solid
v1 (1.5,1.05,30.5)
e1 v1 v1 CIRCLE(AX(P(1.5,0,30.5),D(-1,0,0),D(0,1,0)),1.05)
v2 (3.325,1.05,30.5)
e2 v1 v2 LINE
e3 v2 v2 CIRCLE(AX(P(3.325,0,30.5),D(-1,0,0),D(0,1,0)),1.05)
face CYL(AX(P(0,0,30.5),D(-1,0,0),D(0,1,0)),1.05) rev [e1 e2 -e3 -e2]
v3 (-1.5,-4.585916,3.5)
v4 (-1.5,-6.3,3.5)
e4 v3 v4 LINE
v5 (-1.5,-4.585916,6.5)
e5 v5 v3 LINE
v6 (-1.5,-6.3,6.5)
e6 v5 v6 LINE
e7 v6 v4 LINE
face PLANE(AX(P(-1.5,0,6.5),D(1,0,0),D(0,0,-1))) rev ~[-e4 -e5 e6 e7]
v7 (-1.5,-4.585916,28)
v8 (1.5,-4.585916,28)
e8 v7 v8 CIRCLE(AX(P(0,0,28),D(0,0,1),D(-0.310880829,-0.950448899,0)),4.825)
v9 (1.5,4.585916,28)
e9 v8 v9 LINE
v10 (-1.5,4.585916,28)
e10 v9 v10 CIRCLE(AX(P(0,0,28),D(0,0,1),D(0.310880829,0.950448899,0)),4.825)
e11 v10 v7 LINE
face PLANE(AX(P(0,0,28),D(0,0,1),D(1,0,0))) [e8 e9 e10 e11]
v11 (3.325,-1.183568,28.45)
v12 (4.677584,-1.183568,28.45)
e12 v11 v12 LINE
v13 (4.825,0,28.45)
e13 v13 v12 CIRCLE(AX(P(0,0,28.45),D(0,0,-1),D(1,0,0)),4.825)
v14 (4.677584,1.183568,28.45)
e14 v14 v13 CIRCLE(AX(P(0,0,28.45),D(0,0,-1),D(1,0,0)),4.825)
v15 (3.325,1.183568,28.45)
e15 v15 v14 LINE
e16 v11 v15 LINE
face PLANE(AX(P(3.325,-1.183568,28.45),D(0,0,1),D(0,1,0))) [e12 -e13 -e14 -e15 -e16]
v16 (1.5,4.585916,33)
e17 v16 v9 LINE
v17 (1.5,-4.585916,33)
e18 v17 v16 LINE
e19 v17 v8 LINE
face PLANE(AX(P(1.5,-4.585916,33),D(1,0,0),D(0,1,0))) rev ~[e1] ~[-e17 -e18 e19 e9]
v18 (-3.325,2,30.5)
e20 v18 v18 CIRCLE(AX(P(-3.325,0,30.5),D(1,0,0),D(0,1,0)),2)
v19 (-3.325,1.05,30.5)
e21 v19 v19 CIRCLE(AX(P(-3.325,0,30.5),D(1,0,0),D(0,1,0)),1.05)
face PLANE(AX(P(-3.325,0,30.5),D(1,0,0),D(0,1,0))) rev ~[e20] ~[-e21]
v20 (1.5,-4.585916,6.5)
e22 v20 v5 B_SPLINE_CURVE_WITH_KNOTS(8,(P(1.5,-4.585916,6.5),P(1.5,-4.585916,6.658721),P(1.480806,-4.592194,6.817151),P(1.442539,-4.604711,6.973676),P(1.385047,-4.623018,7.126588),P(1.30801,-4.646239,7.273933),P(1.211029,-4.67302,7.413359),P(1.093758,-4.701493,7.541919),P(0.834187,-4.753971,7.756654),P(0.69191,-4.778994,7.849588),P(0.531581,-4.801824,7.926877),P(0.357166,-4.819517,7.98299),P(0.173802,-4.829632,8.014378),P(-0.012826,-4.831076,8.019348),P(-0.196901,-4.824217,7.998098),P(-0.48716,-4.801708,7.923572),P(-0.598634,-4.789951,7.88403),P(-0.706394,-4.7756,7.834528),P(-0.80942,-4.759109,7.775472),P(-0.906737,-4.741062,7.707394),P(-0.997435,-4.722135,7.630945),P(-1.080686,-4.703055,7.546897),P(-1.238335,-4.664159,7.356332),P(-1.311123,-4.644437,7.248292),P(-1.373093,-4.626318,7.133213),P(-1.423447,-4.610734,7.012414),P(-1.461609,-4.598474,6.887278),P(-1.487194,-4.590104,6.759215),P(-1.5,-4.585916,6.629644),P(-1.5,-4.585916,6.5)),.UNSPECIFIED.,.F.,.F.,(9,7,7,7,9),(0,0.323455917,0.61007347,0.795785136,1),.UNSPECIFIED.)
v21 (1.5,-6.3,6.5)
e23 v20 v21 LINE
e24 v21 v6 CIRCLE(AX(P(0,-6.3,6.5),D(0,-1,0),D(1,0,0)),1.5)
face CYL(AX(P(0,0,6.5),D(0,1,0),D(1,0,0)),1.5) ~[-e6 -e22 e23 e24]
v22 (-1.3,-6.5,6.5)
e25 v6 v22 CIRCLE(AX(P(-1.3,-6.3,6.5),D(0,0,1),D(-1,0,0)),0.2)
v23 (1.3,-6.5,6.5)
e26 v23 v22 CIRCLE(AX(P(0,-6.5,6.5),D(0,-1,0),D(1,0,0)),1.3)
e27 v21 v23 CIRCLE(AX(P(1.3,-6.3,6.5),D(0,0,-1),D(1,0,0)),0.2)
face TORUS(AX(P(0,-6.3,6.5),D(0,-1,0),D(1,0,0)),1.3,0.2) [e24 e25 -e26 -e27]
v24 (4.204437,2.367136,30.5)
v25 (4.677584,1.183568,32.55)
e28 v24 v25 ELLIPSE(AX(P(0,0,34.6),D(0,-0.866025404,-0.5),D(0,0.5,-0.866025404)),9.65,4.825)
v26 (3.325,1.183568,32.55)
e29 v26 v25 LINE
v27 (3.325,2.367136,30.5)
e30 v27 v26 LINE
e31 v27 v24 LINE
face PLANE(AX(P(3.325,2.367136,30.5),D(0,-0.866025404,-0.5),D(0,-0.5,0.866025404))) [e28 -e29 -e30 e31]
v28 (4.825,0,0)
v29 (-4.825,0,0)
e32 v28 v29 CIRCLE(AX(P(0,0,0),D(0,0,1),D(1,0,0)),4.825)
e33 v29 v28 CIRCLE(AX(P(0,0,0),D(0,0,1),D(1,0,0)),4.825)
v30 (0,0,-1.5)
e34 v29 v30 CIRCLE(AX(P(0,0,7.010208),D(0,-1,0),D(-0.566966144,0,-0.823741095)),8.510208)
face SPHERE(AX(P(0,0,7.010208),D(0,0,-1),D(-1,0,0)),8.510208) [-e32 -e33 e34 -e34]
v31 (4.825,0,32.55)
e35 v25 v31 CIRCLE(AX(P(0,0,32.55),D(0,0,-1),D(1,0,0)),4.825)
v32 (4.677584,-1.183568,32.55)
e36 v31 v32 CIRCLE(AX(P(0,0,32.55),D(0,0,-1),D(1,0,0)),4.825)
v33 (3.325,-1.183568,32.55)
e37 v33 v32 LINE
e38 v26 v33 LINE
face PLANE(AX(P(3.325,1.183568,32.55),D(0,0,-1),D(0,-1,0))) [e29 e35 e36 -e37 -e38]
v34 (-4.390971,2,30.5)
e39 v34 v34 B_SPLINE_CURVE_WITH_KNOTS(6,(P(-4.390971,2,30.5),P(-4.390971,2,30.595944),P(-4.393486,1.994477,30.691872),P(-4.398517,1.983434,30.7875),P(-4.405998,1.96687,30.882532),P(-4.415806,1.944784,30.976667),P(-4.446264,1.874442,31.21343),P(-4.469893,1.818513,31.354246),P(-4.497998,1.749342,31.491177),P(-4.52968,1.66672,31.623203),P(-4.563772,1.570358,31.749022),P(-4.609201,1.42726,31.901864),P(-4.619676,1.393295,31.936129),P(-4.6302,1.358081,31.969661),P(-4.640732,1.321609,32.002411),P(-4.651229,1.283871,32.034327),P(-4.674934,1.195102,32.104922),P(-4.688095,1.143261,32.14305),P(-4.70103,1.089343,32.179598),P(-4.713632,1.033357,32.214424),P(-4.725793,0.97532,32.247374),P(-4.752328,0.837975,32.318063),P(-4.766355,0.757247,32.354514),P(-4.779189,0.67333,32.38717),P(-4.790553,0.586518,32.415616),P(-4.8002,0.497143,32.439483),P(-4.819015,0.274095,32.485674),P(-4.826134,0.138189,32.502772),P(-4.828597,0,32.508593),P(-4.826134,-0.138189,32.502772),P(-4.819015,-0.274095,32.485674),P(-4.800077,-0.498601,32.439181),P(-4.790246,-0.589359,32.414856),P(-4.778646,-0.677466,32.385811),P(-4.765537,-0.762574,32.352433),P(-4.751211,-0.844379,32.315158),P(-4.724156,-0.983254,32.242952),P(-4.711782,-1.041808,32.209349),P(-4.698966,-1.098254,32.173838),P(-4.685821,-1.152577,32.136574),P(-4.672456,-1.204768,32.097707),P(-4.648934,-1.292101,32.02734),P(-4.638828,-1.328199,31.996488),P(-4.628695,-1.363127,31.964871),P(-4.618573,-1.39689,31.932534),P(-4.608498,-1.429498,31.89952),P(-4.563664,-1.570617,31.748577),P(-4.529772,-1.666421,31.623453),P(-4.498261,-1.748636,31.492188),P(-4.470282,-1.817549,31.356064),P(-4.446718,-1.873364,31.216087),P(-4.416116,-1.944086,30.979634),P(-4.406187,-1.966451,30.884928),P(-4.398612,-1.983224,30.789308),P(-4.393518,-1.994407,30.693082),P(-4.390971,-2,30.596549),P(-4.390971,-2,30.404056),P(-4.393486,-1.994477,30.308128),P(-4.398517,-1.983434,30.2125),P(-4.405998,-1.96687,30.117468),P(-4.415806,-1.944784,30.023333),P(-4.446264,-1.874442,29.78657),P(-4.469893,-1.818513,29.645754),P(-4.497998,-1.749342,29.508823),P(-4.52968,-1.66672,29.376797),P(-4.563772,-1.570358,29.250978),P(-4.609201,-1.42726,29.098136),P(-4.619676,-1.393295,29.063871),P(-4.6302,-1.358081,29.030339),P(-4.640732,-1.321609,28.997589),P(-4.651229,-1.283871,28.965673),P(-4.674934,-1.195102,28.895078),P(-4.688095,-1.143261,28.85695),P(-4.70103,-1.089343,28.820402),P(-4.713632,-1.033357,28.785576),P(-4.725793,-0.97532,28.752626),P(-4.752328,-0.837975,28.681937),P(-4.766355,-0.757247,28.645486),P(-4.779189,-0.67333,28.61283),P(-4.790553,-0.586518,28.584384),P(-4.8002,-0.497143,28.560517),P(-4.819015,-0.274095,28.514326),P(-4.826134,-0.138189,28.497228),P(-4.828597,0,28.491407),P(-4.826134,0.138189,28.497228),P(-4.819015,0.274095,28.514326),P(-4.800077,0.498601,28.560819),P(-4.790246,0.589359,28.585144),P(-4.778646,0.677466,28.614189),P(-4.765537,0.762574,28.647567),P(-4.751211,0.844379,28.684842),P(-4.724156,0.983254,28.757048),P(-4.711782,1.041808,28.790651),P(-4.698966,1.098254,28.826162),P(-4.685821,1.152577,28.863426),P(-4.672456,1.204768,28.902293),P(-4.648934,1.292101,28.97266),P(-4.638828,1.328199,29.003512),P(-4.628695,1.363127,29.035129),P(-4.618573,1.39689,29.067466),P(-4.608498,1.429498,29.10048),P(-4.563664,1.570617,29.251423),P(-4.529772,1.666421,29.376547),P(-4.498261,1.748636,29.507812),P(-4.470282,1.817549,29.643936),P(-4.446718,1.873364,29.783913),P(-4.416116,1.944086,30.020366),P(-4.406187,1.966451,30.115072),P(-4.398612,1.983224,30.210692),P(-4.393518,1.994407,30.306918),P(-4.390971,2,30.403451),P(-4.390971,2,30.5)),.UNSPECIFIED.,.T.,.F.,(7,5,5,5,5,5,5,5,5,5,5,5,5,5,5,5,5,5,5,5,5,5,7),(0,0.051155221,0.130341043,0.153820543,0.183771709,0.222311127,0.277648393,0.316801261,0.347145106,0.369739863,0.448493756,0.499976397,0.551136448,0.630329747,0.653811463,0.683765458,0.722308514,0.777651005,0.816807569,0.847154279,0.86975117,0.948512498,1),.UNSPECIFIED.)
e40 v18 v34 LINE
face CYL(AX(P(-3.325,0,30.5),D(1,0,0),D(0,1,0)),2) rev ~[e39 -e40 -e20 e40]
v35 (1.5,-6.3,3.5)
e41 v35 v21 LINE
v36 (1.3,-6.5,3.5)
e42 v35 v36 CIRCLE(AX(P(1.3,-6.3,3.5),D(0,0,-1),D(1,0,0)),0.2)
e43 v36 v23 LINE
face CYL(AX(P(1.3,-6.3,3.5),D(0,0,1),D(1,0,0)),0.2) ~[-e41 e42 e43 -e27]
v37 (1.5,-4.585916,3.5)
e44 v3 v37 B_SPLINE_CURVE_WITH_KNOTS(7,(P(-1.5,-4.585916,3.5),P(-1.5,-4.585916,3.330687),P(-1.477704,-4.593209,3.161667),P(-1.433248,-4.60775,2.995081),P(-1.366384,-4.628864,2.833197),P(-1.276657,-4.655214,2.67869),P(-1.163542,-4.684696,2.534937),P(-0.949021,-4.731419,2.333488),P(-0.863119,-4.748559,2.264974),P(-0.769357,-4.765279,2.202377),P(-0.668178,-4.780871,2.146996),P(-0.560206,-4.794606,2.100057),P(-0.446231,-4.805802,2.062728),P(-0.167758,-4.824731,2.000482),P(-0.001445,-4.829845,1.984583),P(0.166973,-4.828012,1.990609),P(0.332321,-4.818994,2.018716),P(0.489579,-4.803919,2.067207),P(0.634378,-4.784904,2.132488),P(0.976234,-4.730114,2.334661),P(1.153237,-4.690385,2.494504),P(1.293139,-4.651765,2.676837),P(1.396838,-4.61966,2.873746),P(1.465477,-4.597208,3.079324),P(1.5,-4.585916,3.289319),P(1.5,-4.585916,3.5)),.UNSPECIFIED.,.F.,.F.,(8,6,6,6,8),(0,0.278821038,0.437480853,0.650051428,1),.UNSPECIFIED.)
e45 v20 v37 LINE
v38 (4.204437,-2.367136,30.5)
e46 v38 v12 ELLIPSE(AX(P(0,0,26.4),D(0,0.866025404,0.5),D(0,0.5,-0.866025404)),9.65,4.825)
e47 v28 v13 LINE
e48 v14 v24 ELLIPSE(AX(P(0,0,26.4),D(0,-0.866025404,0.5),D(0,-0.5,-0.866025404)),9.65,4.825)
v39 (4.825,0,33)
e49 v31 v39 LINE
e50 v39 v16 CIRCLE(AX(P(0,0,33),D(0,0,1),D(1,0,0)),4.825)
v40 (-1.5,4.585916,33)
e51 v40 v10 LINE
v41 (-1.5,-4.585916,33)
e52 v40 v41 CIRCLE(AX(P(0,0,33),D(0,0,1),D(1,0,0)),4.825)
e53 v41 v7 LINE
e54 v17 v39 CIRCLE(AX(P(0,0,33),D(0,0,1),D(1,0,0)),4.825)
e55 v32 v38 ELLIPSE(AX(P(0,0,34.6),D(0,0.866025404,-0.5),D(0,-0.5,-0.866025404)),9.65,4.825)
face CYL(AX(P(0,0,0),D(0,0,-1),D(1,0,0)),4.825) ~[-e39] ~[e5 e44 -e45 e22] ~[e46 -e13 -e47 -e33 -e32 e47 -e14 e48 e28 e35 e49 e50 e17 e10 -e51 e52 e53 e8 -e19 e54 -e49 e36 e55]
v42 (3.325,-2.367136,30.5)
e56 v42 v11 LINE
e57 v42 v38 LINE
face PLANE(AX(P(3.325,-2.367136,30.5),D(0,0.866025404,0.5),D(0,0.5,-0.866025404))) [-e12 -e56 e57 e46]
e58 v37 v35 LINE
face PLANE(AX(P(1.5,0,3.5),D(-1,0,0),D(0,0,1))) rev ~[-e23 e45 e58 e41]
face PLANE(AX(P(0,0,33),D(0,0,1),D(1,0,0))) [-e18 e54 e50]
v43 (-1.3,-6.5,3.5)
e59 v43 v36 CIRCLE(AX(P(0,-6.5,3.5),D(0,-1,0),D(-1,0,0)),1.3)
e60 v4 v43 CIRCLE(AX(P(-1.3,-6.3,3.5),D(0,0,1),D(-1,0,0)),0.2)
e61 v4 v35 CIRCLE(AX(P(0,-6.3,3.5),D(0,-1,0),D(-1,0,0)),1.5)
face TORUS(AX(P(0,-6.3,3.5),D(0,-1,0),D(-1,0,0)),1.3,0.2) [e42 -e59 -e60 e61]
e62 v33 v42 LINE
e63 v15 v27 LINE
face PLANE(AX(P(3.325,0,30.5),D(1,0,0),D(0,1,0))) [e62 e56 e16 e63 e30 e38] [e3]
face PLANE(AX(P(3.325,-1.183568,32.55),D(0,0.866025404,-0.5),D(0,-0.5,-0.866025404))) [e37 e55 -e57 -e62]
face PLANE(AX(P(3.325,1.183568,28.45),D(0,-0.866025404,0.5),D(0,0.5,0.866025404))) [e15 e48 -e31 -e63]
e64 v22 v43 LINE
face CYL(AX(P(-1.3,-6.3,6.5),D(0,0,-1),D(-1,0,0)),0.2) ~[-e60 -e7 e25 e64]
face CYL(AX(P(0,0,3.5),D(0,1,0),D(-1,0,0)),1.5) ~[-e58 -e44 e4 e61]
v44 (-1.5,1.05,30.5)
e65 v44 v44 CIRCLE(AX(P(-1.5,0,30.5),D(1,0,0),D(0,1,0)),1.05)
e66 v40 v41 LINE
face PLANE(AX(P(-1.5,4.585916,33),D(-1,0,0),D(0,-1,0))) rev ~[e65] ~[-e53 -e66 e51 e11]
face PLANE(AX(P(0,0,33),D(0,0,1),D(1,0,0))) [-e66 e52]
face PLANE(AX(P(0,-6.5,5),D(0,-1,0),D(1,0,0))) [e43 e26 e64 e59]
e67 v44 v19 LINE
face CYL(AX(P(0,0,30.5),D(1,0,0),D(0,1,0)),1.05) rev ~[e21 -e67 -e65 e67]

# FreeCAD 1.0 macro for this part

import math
import FreeCAD as App
import Part
import Sketcher
from FreeCAD import Vector
Q = App.Units.Quantity


def edges_at(feature, points):
    """Names of the edges that pass closest to the given points."""
    edges = feature.Shape.Edges
    near = lambda p: min(range(len(edges)), key=lambda i: edges[i].distToShape(Part.Vertex(*p))[0])
    return sorted({f"Edge{near(p) + 1}" for p in points})

doc = App.newDocument("Part")
body = doc.addObject("PartDesign::Body", "Body")

# Sketch on XY plane
sketch1 = body.newObject("Sketcher::SketchObject", "Sketch")
sketch1.AttachmentSupport = (doc.getObject("XY_Plane"), [""])
sketch1.MapMode = "FlatFace"
sketch1.addGeometry(Part.Circle(Vector(0, 0, 0), Vector(0, 0, 1), 4.8), False)
sketch1.addConstraint([
    Sketcher.Constraint("Coincident", 0, 3, -1, 1),
    Sketcher.Constraint("Diameter", 0, 9.65),
])
pad1 = body.newObject("PartDesign::Pad", "Pad")
pad1.Profile = sketch1
pad1.Length = 33

# Sketch on XZ plane
sketch2 = body.newObject("Sketcher::SketchObject", "Sketch001")
sketch2.AttachmentSupport = (doc.getObject("XZ_Plane"), [""])
sketch2.MapMode = "FlatFace"
sketch2.addGeometry([
    Part.ArcOfCircle(Part.Circle(Vector(0, 3.5, 0), Vector(0, 0, 1), 1.5), math.radians(180), math.radians(360)),
    Part.LineSegment(Vector(1.5, 3.5, 0), Vector(1.5, 6.5, 0)),
    Part.ArcOfCircle(Part.Circle(Vector(0, 6.5, 0), Vector(0, 0, 1), 1.5), math.radians(0), math.radians(180)),
    Part.LineSegment(Vector(-1.5, 6.5, 0), Vector(-1.5, 3.5, 0)),
], False)
sketch2.addConstraint([
    Sketcher.Constraint("Tangent", 0, 2, 1, 1),
    Sketcher.Constraint("Tangent", 1, 2, 2, 1),
    Sketcher.Constraint("Tangent", 2, 2, 3, 1),
    Sketcher.Constraint("Tangent", 3, 2, 0, 1),
    Sketcher.Constraint("Vertical", 1),
    Sketcher.Constraint("Vertical", 3),
    Sketcher.Constraint("PointOnObject", 0, 3, -2),
    Sketcher.Constraint("Radius", 0, 1.5),
    Sketcher.Constraint("DistanceY", 1, 1, 1, 2, 3.0),
    Sketcher.Constraint("DistanceY", -1, 1, 0, 3, 3.5),
])
pad2 = body.newObject("PartDesign::Pad", "Pad001")
pad2.Profile = sketch2
pad2.Length = 6.5
doc.recompute()

fillet = body.newObject("PartDesign::Fillet", "Fillet")
fillet.Base = (pad2, edges_at(pad2, [
    (0, -6.5, 2),
    (1.5, -6.5, 5),
    (0, -6.5, 8),
    (-1.5, -6.5, 5),
]))
fillet.Radius = 0.2

# Sketch on XZ plane
sketch3 = body.newObject("Sketcher::SketchObject", "Sketch002")
sketch3.AttachmentSupport = (doc.getObject("XZ_Plane"), [""])
sketch3.MapMode = "FlatFace"
sketch3.addGeometry([
    Part.LineSegment(Vector(0, 0, 0), Vector(-4.8, 0, 0)),
    Part.ArcOfCircle(Part.Circle(Vector(0, 7, 0), Vector(0, 0, 1), 8.5), math.radians(-125), math.radians(-90)),
    Part.LineSegment(Vector(0, -1.5, 0), Vector(0, 0, 0)),
], False)
sketch3.addConstraint([
    Sketcher.Constraint("Coincident", 0, 2, 1, 1),
    Sketcher.Constraint("Coincident", 1, 2, 2, 1),
    Sketcher.Constraint("Coincident", 2, 2, 0, 1),
    Sketcher.Constraint("Horizontal", 0),
    Sketcher.Constraint("Vertical", 2),
    Sketcher.Constraint("Coincident", 2, 2, -1, 1),
    Sketcher.Constraint("PointOnObject", 1, 3, -2),
    Sketcher.Constraint("DistanceY", 2, 1, 2, 2, 1.5),
    Sketcher.Constraint("DistanceX", 0, 2, 0, 1, 4.825),
])
revolution = body.newObject("PartDesign::Revolution", "Revolution")
revolution.Profile = sketch3
revolution.ReferenceAxis = (sketch3, ["V_Axis"])
revolution.Angle = 360

# Sketch on XY plane
sketch4 = body.newObject("Sketcher::SketchObject", "Sketch003")
sketch4.AttachmentSupport = (doc.getObject("XY_Plane"), [""])
sketch4.MapMode = "FlatFace"
sketch4.AttachmentOffset = App.Placement(Vector(0, 0, 33), App.Rotation())
sketch4.addGeometry([
    Part.ArcOfCircle(Part.Circle(Vector(0, 0, 0), Vector(0, 0, 1), 4.8), math.radians(72), math.radians(108)),
    Part.LineSegment(Vector(-1.5, 4.6, 0), Vector(-1.5, -4.6, 0)),
    Part.ArcOfCircle(Part.Circle(Vector(0, 0, 0), Vector(0, 0, 1), 4.8), math.radians(-108), math.radians(-72)),
    Part.LineSegment(Vector(1.5, -4.6, 0), Vector(1.5, 4.6, 0)),
], False)
sketch4.addConstraint([
    Sketcher.Constraint("Coincident", 0, 2, 1, 1),
    Sketcher.Constraint("Coincident", 1, 2, 2, 1),
    Sketcher.Constraint("Coincident", 2, 2, 3, 1),
    Sketcher.Constraint("Coincident", 3, 2, 0, 1),
    Sketcher.Constraint("Vertical", 1),
    Sketcher.Constraint("Vertical", 3),
    Sketcher.Constraint("Coincident", 0, 3, -1, 1),
    Sketcher.Constraint("Coincident", 2, 3, -1, 1),
    Sketcher.Constraint("Equal", 0, 2),
    Sketcher.Constraint("Horizontal", 1, 2, 2, 2),
    Sketcher.Constraint("Radius", 0, 4.825),
    Sketcher.Constraint("DistanceX", 1, 2, 2, 2, 3.0),
])
pocket1 = body.newObject("PartDesign::Pocket", "Pocket")
pocket1.Profile = sketch4
pocket1.Length = 5

# Sketch on YZ plane
sketch5 = body.newObject("Sketcher::SketchObject", "Sketch004")
sketch5.AttachmentSupport = (doc.getObject("YZ_Plane"), [""])
sketch5.MapMode = "FlatFace"
sketch5.addGeometry(Part.Circle(Vector(0, 30.5, 0), Vector(0, 0, 1), 1.1), False)
sketch5.addConstraint([
    Sketcher.Constraint("PointOnObject", 0, 3, -2),
    Sketcher.Constraint("Diameter", 0, 2.1),
    Sketcher.Constraint("DistanceY", -1, 1, 0, 3, 30.5),
])
pocket2 = body.newObject("PartDesign::Pocket", "Pocket001")
pocket2.Profile = sketch5
pocket2.Type = "ThroughAll"
pocket2.Midplane = True

# Sketch on YZ plane
sketch6 = body.newObject("Sketcher::SketchObject", "Sketch005")
sketch6.AttachmentSupport = (doc.getObject("YZ_Plane"), [""])
sketch6.MapMode = "FlatFace"
sketch6.AttachmentOffset = App.Placement(Vector(0, 0, 3.325), App.Rotation())
sketch6.addGeometry([
    Part.LineSegment(Vector(1.2, 28.4, 0), Vector(2.4, 30.5, 0)),  # 0
    Part.LineSegment(Vector(2.4, 30.5, 0), Vector(1.2, 32.5, 0)),  # 1
    Part.LineSegment(Vector(1.2, 32.5, 0), Vector(-1.2, 32.5, 0)),  # 2
    Part.LineSegment(Vector(-1.2, 32.5, 0), Vector(-2.4, 30.5, 0)),  # 3
    Part.LineSegment(Vector(-2.4, 30.5, 0), Vector(-1.2, 28.4, 0)),  # 4
    Part.LineSegment(Vector(-1.2, 28.4, 0), Vector(1.2, 28.4, 0)),  # 5
], False)
sketch6.addConstraint([
    Sketcher.Constraint("Coincident", 0, 2, 1, 1),
    Sketcher.Constraint("Coincident", 1, 2, 2, 1),
    Sketcher.Constraint("Coincident", 2, 2, 3, 1),
    Sketcher.Constraint("Coincident", 3, 2, 4, 1),
    Sketcher.Constraint("Coincident", 4, 2, 5, 1),
    Sketcher.Constraint("Coincident", 5, 2, 0, 1),
    Sketcher.Constraint("Horizontal", 2),
    Sketcher.Constraint("Horizontal", 5),
    Sketcher.Constraint("Symmetric", 0, 2, 3, 2, -2),
    Sketcher.Constraint("Parallel", 0, 3),
    Sketcher.Constraint("Parallel", 1, 4),
    Sketcher.Constraint("Vertical", 2, 2, 4, 2),
    Sketcher.Constraint("Vertical", 1, 2, 5, 2),
    Sketcher.Constraint("Angle", 0, Q("60 deg")),
    Sketcher.Constraint("DistanceY", -1, 1, 0, 2, 30.5),
    Sketcher.Constraint("DistanceY", 4, 2, 2, 2, 4.1),
    Sketcher.Constraint("DistanceX", 2, 2, 2, 1, 2.367136),
])
pocket3 = body.newObject("PartDesign::Pocket", "Pocket002")
pocket3.Profile = sketch6
pocket3.Length = 1.501
pocket3.Reversed = True

# Sketch on YZ plane
sketch7 = body.newObject("Sketcher::SketchObject", "Sketch006")
sketch7.AttachmentSupport = (doc.getObject("YZ_Plane"), [""])
sketch7.MapMode = "FlatFace"
sketch7.AttachmentOffset = App.Placement(Vector(0, 0, -3.325), App.Rotation())
sketch7.addGeometry(Part.Circle(Vector(0, 30.5, 0), Vector(0, 0, 1), 2), False)
sketch7.addConstraint([
    Sketcher.Constraint("PointOnObject", 0, 3, -2),
    Sketcher.Constraint("Diameter", 0, 4.0),
    Sketcher.Constraint("DistanceY", -1, 1, 0, 3, 30.5),
])
pocket4 = body.newObject("PartDesign::Pocket", "Pocket003")
pocket4.Profile = sketch7
pocket4.Length = 1.501

doc.recompute()
